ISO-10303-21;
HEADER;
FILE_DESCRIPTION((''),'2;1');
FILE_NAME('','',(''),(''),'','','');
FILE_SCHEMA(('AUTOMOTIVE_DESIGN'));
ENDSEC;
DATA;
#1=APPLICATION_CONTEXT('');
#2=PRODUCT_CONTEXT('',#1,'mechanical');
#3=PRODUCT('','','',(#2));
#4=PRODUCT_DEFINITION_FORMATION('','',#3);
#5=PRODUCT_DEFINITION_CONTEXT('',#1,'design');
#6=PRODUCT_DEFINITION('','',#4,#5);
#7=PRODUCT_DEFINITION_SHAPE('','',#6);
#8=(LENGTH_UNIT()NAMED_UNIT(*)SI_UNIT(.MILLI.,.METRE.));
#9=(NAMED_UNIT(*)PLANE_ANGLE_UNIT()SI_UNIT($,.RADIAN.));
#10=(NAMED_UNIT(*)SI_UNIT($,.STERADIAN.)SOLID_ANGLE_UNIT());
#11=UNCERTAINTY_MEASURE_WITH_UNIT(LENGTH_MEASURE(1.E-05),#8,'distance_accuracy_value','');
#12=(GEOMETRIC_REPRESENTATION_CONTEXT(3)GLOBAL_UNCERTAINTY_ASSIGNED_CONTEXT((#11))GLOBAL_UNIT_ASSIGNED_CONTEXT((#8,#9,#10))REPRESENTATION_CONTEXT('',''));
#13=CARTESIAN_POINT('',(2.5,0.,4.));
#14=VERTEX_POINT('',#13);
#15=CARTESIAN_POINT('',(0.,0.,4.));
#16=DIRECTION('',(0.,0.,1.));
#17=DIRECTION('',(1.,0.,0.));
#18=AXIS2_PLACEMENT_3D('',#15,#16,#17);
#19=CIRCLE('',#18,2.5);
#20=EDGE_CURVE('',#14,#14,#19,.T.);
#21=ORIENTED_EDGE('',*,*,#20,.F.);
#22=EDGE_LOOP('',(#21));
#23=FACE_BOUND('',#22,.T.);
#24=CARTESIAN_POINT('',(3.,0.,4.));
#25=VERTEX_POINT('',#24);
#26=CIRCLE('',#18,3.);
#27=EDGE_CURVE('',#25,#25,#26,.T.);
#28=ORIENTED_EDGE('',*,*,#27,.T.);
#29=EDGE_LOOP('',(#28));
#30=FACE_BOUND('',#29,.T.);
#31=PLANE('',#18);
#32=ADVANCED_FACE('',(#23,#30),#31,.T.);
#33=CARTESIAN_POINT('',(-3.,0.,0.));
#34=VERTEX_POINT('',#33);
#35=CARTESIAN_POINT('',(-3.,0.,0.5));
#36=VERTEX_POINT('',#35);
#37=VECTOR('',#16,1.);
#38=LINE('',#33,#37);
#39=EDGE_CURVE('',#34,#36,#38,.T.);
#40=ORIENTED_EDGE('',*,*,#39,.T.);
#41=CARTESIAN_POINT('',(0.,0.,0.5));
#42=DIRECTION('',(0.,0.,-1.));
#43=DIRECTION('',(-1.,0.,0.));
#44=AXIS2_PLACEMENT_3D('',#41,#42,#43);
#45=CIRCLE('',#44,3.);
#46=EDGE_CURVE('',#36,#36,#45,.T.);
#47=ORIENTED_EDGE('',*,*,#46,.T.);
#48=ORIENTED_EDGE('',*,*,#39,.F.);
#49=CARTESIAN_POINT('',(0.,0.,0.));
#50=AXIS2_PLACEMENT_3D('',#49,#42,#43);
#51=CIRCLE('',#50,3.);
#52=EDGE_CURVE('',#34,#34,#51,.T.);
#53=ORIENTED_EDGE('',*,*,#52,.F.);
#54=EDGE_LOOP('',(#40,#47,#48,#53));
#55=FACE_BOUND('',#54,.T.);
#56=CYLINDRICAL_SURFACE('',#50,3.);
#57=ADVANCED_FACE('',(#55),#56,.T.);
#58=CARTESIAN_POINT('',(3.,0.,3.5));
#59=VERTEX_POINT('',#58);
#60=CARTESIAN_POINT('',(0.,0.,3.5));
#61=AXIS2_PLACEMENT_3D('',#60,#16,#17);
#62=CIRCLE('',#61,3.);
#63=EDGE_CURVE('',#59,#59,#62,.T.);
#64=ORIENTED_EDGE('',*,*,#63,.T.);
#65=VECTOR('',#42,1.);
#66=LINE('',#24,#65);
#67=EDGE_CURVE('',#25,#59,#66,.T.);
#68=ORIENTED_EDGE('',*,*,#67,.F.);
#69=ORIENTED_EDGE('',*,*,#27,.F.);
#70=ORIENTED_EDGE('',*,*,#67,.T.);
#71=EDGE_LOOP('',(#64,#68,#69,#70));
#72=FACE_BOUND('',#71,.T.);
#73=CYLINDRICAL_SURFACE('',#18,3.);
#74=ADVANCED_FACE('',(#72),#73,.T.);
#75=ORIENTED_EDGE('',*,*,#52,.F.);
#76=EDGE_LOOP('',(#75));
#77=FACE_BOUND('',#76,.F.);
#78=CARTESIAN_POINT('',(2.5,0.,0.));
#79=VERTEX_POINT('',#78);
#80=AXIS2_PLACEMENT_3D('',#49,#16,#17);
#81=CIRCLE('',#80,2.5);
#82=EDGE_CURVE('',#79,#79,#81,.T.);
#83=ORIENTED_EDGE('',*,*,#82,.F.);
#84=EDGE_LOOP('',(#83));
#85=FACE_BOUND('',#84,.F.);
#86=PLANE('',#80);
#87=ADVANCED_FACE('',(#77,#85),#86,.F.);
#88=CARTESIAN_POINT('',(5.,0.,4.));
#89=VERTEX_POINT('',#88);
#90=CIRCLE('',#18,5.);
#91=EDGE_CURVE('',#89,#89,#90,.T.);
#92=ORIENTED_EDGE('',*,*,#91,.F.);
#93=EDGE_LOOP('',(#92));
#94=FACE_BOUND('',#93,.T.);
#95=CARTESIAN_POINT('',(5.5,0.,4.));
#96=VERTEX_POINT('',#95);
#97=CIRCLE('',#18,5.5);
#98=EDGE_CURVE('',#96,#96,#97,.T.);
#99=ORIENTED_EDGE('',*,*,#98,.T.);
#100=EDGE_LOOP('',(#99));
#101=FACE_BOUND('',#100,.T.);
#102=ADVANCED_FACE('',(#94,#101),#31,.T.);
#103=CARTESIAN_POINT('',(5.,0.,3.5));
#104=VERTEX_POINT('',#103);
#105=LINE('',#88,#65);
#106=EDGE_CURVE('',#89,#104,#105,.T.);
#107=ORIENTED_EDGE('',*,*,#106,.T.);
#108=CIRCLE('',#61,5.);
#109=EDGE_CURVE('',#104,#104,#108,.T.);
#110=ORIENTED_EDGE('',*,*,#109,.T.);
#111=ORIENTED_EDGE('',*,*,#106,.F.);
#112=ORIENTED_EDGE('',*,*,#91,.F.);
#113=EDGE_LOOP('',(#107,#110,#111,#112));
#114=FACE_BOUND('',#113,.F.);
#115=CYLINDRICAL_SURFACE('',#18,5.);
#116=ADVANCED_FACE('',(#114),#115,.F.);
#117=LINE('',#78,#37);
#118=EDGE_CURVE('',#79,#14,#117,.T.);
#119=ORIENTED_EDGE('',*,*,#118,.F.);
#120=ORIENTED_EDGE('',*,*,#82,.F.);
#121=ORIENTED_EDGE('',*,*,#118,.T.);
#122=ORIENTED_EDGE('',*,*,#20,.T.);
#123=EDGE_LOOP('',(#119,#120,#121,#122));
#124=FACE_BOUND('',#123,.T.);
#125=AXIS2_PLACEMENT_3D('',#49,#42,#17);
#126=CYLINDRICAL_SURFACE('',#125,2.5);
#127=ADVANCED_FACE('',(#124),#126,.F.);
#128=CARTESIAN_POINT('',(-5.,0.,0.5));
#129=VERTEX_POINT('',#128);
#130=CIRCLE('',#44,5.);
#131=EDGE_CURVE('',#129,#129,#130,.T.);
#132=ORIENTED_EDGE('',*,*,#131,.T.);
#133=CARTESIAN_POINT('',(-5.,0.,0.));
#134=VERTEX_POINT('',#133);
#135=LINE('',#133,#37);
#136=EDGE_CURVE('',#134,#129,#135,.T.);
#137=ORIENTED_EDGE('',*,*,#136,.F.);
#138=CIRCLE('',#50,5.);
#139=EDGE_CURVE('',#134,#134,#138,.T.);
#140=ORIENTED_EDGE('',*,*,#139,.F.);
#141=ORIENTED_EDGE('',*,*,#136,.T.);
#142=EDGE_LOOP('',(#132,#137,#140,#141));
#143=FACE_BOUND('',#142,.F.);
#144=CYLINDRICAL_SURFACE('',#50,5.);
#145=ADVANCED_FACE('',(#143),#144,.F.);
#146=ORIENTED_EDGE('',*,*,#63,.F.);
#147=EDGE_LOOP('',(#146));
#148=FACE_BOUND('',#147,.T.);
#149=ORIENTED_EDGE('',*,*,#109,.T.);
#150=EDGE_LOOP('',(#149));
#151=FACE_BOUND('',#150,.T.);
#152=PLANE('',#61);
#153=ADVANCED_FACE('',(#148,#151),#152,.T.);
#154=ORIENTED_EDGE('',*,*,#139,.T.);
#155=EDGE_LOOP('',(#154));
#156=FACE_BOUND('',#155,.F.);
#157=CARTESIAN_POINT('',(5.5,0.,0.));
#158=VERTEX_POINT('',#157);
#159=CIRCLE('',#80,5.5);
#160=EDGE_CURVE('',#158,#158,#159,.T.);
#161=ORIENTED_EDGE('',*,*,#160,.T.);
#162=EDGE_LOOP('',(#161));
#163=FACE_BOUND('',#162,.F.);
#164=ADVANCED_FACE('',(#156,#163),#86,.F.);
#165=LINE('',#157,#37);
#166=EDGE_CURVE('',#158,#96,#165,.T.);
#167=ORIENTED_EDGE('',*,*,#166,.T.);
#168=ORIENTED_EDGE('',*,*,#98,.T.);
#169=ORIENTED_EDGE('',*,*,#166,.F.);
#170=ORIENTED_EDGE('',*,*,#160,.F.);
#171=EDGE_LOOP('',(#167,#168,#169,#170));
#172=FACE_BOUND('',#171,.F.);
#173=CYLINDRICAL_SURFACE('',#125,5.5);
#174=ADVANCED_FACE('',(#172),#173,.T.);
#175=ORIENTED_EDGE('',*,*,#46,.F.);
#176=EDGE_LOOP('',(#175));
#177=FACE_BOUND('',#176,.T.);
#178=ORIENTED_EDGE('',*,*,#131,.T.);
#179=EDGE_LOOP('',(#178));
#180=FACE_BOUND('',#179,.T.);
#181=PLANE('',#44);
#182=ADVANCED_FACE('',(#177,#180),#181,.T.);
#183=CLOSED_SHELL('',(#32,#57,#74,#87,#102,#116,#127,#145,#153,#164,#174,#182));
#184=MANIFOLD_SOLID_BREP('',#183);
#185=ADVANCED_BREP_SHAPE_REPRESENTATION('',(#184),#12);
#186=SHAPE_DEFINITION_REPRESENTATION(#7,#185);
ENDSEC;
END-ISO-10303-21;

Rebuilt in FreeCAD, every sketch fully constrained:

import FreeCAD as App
import Part
import Sketcher
Q = App.Units.Quantity

doc = App.newDocument("Part")
body = doc.addObject("PartDesign::Body", "Body")

# Sketch on XY plane
sketch1 = body.newObject("Sketcher::SketchObject", "Sketch")
sketch1.AttachmentSupport = (doc.getObject("XY_Plane"), [""])
sketch1.MapMode = "FlatFace"
sketch1.addGeometry(Part.Circle(App.Vector(0, 0, 0), App.Vector(0, 0, 1), 5.5), False)
sketch1.addGeometry(Part.Circle(App.Vector(0, 0, 0), App.Vector(0, 0, 1), 2.5), False)
sketch1.addConstraint(Sketcher.Constraint("Coincident", 0, 3, -1, 1))
sketch1.addConstraint(Sketcher.Constraint("Coincident", 1, 3, -1, 1))
sketch1.addConstraint(Sketcher.Constraint("Diameter", 0, Q("11 mm")))
sketch1.addConstraint(Sketcher.Constraint("Diameter", 1, Q("5 mm")))
pad1 = body.newObject("PartDesign::Pad", "Pad")
pad1.Profile = sketch1
pad1.Length = 4

# Sketch on XY plane
sketch2 = body.newObject("Sketcher::SketchObject", "Sketch001")
sketch2.AttachmentSupport = (doc.getObject("XY_Plane"), [""])
sketch2.MapMode = "FlatFace"
sketch2.AttachmentOffset = App.Placement(App.Vector(0, 0, 4), App.Rotation())
sketch2.addGeometry(Part.Circle(App.Vector(0, 0, 0), App.Vector(0, 0, 1), 5), False)
sketch2.addGeometry(Part.Circle(App.Vector(0, 0, 0), App.Vector(0, 0, 1), 3), False)
sketch2.addConstraint(Sketcher.Constraint("Coincident", 0, 3, -1, 1))
sketch2.addConstraint(Sketcher.Constraint("Coincident", 1, 3, -1, 1))
sketch2.addConstraint(Sketcher.Constraint("Diameter", 0, Q("10 mm")))
sketch2.addConstraint(Sketcher.Constraint("Diameter", 1, Q("6 mm")))
pocket1 = body.newObject("PartDesign::Pocket", "Pocket")
pocket1.Profile = sketch2
pocket1.Length = 0.5

# Sketch on XY plane
sketch3 = body.newObject("Sketcher::SketchObject", "Sketch002")
sketch3.AttachmentSupport = (doc.getObject("XY_Plane"), [""])
sketch3.MapMode = "FlatFace"
sketch3.addGeometry(Part.Circle(App.Vector(0, 0, 0), App.Vector(0, 0, 1), 5), False)
sketch3.addGeometry(Part.Circle(App.Vector(0, 0, 0), App.Vector(0, 0, 1), 3), False)
sketch3.addConstraint(Sketcher.Constraint("Coincident", 0, 3, -1, 1))
sketch3.addConstraint(Sketcher.Constraint("Coincident", 1, 3, -1, 1))
sketch3.addConstraint(Sketcher.Constraint("Diameter", 0, Q("10 mm")))
sketch3.addConstraint(Sketcher.Constraint("Diameter", 1, Q("6 mm")))
pocket2 = body.newObject("PartDesign::Pocket", "Pocket001")
pocket2.Profile = sketch3
pocket2.Length = 0.5
pocket2.Reversed = True

doc.recompute()
